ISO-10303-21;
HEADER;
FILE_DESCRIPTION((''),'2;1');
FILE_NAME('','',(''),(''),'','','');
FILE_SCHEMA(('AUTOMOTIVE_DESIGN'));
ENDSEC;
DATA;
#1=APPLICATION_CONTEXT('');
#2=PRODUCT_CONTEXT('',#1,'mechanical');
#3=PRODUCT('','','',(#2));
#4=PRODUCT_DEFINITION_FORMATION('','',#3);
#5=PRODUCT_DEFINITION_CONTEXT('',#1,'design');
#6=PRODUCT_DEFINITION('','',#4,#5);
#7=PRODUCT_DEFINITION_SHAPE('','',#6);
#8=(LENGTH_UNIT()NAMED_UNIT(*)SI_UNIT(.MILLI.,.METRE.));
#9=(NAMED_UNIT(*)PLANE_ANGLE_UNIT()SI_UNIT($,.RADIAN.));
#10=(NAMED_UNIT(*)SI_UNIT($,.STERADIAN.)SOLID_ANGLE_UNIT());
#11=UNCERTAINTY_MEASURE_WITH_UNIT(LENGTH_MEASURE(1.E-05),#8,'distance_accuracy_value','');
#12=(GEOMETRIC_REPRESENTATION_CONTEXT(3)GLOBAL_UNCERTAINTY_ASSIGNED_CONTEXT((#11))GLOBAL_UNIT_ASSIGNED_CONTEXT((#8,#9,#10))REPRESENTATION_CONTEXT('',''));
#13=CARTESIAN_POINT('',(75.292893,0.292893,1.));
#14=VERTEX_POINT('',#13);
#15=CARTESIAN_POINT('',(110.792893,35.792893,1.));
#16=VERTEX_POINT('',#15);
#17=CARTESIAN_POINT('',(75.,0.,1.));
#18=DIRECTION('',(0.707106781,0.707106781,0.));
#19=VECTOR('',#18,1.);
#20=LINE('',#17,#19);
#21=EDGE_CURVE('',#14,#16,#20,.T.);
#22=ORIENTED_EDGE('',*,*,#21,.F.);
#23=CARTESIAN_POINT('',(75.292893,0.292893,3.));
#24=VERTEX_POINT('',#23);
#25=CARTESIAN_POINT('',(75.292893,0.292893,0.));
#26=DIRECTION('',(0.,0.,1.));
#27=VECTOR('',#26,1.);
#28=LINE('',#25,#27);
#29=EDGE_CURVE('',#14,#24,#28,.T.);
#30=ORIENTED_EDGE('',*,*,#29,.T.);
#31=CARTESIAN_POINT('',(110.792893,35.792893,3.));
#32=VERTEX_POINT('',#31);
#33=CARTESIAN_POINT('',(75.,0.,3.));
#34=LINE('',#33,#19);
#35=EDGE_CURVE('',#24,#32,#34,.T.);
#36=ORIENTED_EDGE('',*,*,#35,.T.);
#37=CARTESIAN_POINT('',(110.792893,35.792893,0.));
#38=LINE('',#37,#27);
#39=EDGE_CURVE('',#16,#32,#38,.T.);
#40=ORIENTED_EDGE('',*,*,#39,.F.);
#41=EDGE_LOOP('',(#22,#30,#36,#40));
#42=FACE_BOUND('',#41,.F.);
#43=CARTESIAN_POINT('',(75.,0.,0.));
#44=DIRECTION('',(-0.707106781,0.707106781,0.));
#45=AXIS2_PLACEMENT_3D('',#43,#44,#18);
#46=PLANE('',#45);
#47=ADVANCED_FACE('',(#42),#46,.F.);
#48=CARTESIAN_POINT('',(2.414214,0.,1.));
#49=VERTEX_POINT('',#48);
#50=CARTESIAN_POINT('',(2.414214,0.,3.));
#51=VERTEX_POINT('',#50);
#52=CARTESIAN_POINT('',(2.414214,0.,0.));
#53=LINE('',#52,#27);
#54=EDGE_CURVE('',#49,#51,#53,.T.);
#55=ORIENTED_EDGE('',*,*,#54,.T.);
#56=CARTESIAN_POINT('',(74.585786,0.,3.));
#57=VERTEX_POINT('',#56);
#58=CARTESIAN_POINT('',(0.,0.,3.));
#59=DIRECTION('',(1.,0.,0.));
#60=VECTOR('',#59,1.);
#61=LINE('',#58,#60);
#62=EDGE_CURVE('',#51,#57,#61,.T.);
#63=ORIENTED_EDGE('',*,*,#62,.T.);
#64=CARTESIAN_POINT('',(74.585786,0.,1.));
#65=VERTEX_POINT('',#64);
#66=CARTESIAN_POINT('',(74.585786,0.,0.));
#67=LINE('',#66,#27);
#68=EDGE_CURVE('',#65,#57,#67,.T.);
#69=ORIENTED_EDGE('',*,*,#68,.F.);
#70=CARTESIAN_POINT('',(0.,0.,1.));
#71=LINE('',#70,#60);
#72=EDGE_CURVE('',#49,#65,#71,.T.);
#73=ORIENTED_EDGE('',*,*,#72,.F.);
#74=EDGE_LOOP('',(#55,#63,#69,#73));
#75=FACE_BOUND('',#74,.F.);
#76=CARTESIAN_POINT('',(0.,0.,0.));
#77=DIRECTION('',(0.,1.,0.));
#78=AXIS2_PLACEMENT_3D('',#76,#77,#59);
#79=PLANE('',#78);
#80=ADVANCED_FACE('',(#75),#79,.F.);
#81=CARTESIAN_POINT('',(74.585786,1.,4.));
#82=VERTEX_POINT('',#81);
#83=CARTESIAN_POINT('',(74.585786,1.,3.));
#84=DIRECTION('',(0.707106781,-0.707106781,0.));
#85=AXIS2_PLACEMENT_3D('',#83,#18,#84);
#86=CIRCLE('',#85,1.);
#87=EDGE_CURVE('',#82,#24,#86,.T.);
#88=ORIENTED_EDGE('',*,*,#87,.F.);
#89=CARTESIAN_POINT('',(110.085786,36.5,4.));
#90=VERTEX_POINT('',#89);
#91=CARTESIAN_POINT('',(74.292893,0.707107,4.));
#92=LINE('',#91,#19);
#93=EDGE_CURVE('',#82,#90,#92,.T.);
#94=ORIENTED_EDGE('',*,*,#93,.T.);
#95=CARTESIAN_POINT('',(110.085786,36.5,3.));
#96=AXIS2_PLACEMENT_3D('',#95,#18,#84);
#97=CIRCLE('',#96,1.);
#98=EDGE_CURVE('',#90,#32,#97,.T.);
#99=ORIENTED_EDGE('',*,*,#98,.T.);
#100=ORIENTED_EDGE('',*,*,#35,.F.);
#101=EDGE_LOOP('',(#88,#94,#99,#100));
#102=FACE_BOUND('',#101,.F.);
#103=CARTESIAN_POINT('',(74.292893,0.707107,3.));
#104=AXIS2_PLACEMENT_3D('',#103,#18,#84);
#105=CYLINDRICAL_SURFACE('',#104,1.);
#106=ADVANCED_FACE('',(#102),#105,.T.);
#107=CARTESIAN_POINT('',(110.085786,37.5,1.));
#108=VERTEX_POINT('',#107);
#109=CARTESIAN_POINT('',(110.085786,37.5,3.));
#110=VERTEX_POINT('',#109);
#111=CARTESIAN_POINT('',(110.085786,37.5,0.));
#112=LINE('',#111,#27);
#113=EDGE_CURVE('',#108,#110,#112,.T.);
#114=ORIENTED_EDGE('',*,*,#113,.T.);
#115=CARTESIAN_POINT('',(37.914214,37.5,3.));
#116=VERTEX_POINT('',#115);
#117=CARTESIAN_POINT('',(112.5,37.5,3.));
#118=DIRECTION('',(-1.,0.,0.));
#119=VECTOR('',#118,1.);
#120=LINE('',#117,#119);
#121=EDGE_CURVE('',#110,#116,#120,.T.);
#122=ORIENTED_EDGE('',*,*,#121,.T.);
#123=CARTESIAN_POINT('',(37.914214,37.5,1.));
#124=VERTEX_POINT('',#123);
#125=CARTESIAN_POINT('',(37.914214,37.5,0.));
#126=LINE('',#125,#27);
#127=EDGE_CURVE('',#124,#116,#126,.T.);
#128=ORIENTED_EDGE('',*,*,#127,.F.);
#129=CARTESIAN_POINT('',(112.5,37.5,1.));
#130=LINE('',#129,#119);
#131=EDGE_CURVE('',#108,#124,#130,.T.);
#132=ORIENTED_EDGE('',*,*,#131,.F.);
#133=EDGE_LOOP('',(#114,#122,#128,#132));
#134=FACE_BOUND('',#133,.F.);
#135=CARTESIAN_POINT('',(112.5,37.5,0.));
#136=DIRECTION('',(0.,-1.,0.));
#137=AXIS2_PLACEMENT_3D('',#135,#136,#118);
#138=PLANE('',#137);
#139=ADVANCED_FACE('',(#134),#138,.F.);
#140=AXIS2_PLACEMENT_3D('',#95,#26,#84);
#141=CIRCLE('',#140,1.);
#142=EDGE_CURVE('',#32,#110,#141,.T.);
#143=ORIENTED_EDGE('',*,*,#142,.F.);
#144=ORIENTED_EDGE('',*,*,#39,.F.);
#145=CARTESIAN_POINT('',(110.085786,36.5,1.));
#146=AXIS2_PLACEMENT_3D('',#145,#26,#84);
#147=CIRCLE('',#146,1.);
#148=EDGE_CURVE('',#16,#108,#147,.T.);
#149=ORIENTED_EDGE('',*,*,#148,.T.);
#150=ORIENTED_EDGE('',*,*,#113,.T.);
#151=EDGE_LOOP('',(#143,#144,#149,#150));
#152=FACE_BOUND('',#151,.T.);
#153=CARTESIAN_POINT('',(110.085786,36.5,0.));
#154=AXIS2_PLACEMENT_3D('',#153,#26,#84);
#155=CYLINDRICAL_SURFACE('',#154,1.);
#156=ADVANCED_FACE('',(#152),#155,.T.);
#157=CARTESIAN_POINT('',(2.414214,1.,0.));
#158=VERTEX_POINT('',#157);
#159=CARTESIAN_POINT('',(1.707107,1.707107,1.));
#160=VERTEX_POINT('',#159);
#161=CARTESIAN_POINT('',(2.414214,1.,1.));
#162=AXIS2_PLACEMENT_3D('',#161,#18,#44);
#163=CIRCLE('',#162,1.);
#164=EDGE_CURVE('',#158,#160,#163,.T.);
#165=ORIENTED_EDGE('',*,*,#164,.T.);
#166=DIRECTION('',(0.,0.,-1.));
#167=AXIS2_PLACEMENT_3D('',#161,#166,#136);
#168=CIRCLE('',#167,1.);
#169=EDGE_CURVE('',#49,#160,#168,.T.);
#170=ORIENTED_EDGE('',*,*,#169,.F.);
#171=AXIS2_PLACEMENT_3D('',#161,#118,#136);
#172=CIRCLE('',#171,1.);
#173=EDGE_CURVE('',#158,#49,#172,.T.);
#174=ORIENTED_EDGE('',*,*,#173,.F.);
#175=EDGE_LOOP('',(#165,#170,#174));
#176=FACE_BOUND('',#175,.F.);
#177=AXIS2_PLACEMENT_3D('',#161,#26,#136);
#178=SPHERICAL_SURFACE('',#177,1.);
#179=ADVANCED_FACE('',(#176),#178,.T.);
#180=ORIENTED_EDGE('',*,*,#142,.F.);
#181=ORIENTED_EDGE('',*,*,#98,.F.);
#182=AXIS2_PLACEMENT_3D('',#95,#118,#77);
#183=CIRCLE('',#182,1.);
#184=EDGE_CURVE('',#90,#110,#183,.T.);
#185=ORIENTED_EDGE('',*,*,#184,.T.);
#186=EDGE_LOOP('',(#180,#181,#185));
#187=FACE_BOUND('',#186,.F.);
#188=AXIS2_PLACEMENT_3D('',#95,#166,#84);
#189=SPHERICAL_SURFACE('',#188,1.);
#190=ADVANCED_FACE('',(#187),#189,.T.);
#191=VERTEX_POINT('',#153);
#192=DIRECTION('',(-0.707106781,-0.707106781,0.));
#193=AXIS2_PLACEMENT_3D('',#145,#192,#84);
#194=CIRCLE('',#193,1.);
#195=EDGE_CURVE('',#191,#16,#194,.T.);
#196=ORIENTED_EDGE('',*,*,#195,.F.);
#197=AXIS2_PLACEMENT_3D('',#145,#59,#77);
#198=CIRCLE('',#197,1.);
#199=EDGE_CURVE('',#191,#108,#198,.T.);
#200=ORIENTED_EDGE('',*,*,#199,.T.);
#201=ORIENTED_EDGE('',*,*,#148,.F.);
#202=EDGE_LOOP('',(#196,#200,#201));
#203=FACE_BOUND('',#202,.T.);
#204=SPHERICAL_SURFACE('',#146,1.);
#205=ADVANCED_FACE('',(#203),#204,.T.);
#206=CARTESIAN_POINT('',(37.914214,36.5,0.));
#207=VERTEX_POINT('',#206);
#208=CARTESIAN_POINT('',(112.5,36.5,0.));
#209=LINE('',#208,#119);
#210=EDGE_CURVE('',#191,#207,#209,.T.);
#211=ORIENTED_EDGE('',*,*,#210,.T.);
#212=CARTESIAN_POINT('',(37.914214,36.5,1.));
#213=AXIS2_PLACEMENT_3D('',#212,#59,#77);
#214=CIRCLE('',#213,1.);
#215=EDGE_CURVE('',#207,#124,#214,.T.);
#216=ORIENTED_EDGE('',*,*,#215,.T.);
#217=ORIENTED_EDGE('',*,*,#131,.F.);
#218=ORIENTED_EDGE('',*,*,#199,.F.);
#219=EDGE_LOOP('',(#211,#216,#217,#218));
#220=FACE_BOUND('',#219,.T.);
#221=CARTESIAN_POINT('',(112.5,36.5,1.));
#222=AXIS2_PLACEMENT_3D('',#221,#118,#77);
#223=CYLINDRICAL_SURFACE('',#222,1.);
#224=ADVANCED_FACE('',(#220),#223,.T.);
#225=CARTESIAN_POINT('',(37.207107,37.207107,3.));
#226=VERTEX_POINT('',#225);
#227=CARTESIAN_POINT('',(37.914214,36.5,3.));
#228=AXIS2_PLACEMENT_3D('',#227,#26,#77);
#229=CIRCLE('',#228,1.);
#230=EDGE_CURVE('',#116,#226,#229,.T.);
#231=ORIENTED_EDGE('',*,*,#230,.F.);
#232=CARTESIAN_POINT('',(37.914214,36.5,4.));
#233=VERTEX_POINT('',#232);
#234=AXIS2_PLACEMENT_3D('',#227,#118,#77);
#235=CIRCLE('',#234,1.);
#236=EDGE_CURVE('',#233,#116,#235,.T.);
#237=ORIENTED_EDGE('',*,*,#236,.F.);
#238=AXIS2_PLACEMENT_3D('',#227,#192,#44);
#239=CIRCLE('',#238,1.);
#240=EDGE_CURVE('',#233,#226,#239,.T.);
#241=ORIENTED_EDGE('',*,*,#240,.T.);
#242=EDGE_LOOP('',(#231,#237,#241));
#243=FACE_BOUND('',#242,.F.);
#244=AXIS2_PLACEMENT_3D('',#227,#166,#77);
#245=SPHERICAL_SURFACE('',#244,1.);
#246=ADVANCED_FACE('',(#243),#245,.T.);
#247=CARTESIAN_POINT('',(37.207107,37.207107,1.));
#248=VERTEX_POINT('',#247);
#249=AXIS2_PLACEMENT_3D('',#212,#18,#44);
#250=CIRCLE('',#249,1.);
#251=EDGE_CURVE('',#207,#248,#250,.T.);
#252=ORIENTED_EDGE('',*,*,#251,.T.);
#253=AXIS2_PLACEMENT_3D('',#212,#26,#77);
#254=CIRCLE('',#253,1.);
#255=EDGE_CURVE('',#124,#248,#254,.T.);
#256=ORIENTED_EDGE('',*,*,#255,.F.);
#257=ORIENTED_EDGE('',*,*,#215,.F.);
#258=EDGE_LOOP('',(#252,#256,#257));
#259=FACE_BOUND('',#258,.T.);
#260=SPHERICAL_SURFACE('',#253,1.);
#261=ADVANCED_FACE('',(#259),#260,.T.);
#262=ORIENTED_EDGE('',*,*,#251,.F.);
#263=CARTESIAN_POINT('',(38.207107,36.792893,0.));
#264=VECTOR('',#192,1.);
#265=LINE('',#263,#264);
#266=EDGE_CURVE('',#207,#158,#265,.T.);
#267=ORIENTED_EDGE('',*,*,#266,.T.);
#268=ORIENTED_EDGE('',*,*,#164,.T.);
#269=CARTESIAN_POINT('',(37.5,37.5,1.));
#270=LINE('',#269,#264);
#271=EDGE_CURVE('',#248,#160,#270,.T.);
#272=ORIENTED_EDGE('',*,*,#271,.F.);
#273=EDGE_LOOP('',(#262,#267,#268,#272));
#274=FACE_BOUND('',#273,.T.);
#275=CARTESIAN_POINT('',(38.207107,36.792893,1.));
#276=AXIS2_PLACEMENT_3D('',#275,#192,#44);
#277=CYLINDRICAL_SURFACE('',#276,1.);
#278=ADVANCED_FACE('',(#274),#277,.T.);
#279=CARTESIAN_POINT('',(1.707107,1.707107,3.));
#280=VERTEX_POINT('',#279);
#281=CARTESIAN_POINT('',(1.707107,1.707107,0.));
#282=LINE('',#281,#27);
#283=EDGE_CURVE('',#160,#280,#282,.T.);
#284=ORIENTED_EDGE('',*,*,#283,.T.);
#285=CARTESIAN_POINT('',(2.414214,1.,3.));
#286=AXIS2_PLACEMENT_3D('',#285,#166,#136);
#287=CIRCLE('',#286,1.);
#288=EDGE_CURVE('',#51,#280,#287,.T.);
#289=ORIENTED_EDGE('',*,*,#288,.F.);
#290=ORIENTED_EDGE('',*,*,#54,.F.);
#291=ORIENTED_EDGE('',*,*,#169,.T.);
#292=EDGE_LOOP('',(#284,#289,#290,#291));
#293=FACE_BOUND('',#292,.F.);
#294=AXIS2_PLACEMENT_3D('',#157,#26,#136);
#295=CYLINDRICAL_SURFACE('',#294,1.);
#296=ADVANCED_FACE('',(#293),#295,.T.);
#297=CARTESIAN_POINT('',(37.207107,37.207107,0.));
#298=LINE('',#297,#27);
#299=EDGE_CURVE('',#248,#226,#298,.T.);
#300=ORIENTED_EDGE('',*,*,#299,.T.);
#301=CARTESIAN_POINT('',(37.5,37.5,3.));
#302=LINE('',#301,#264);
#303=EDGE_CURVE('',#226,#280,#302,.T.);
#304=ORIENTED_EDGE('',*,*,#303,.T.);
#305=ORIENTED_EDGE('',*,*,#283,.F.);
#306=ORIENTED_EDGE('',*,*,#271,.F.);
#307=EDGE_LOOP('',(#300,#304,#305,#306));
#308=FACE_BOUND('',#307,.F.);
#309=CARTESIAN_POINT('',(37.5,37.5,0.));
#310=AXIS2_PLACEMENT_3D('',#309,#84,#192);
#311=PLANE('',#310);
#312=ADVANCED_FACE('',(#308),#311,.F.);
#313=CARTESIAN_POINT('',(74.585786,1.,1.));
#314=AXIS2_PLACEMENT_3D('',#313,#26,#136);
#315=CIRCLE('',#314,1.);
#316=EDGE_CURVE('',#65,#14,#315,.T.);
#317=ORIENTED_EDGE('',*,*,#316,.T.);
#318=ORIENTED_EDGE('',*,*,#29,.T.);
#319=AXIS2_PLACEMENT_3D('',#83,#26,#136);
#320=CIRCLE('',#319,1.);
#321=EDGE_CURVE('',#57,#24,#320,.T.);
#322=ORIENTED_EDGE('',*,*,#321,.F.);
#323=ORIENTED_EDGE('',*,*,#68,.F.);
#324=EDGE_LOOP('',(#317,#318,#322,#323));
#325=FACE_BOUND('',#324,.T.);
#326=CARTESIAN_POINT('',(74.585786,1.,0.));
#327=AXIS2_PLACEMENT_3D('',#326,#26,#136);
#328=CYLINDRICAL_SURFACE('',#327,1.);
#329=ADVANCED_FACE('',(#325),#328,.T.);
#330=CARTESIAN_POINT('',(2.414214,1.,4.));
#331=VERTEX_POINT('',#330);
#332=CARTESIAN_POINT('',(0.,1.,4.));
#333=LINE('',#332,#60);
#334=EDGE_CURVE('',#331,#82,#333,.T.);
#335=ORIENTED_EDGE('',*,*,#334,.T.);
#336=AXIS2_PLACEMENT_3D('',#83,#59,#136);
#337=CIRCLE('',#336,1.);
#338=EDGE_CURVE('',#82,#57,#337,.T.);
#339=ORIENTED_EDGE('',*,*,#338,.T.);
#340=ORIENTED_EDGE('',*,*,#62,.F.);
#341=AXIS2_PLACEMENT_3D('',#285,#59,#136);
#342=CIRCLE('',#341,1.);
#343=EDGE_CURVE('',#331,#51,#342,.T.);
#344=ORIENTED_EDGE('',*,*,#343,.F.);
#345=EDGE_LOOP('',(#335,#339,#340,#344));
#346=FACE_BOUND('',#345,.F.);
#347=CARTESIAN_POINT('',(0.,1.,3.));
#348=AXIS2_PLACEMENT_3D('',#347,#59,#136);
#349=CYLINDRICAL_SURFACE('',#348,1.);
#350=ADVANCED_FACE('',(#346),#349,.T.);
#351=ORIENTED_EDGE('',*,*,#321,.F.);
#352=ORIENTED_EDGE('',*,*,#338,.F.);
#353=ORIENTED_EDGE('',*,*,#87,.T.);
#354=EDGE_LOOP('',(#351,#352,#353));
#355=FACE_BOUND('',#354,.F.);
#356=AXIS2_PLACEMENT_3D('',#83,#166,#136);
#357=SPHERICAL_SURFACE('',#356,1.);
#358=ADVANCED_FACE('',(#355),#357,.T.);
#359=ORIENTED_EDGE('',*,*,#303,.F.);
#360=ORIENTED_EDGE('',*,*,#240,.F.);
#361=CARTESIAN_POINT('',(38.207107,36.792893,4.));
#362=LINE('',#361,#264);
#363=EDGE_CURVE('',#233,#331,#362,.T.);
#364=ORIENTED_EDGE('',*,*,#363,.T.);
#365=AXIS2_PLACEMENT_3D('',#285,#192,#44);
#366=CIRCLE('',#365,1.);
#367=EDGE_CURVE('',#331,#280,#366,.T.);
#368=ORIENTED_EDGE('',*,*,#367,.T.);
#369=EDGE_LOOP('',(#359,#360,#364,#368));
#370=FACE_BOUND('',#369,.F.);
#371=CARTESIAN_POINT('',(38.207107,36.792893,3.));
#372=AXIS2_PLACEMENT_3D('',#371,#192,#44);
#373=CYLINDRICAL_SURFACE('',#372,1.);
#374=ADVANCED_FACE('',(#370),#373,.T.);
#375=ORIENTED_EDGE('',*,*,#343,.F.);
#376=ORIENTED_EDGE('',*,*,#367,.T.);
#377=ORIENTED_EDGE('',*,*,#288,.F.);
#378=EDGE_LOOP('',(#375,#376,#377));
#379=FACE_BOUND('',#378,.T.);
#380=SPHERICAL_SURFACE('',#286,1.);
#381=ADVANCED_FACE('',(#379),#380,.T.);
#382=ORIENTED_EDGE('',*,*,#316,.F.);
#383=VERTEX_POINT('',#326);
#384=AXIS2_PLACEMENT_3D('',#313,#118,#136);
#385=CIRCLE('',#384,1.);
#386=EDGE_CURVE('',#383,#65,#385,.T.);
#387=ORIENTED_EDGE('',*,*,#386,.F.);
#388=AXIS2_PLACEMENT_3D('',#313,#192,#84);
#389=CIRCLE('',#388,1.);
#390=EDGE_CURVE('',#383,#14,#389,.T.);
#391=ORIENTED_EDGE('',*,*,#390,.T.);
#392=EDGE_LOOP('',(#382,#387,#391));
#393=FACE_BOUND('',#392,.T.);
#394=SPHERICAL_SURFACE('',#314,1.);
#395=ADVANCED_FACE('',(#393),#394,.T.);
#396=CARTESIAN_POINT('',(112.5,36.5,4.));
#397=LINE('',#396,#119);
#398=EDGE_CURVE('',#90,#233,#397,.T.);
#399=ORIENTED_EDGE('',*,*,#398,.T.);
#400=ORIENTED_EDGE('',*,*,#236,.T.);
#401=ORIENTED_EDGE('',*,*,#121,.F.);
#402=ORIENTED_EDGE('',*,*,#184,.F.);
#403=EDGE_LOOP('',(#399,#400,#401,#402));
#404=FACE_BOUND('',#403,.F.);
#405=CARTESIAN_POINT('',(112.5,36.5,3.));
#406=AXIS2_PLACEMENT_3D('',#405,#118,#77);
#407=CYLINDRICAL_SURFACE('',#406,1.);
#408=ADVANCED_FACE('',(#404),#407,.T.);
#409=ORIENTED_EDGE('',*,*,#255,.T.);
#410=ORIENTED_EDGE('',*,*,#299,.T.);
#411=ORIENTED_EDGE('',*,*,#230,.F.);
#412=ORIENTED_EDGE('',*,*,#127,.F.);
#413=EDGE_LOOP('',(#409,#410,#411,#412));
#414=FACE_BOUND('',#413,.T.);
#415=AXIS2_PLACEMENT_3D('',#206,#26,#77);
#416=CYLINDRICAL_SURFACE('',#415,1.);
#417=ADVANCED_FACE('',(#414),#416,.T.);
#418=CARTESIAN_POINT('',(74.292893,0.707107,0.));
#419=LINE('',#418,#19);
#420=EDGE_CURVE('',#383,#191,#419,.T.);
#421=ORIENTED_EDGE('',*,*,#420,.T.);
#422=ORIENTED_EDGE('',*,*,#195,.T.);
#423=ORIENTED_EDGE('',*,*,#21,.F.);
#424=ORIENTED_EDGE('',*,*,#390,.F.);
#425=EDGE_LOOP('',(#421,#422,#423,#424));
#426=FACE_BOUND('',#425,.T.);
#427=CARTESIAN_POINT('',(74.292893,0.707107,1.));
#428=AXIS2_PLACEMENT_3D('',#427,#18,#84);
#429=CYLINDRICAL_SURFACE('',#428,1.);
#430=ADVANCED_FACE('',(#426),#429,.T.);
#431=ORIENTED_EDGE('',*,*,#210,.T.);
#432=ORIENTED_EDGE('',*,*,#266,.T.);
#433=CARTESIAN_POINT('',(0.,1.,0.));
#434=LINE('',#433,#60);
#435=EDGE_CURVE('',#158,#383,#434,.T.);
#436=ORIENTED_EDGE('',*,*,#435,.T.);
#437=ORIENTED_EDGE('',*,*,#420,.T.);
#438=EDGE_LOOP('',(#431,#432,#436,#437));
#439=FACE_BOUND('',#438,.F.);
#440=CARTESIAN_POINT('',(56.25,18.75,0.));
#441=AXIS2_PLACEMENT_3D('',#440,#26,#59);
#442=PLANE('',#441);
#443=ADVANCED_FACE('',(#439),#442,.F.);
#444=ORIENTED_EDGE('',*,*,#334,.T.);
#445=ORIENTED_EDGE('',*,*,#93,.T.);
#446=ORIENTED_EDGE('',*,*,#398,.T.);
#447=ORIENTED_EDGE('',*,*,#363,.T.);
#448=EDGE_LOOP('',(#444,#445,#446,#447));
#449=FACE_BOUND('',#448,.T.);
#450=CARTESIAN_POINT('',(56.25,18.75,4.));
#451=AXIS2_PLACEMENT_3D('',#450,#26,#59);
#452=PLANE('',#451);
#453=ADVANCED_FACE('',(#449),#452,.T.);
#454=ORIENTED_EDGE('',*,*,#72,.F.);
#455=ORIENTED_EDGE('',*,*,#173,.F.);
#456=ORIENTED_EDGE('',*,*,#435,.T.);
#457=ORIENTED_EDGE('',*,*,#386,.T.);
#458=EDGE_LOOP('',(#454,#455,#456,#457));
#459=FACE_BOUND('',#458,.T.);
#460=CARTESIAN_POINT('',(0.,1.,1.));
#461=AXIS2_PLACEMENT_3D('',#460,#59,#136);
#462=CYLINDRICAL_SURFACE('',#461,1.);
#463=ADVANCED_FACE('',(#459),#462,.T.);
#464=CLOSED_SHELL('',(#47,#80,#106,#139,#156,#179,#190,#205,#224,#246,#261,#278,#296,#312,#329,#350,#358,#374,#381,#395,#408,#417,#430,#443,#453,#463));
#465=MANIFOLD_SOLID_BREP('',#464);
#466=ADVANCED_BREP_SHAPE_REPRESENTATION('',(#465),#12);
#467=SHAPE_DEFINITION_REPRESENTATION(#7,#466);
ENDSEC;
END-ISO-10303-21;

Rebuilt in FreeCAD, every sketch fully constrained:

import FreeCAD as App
import Part
import Sketcher
Q = App.Units.Quantity

doc = App.newDocument("Part")
body = doc.addObject("PartDesign::Body", "Body")

# Sketch on XY plane
sketch1 = doc.addObject("Sketcher::SketchObject", "Sketch")
body.addObject(sketch1)
sketch1.AttachmentSupport = (doc.XY_Plane, [""])
sketch1.MapMode = "FlatFace"
sketch1.addGeometry([
    Part.LineSegment(App.Vector(0, 0, 0), App.Vector(75, 0, 0)),
    Part.LineSegment(App.Vector(75, 0, 0), App.Vector(112, 38, 0)),
    Part.LineSegment(App.Vector(112, 38, 0), App.Vector(38, 38, 0)),
    Part.LineSegment(App.Vector(38, 38, 0), App.Vector(0, 0, 0)),
], False)
sketch1.addConstraint([
    Sketcher.Constraint("Coincident", 0, 2, 1, 1),
    Sketcher.Constraint("Coincident", 1, 2, 2, 1),
    Sketcher.Constraint("Coincident", 2, 2, 3, 1),
    Sketcher.Constraint("Coincident", 3, 2, 0, 1),
    Sketcher.Constraint("Horizontal", 0),
    Sketcher.Constraint("Horizontal", 2),
    Sketcher.Constraint("Coincident", 3, 2, -1, 1),
    Sketcher.Constraint("Parallel", 1, 3),
    Sketcher.Constraint("DistanceX", 0, 1, 0, 2, Q("75 mm")),
    Sketcher.Constraint("Angle", 1, Q("45 deg")),
    Sketcher.Constraint("DistanceX", -1, 1, 1, 2, Q("112.5 mm")),
])
pad1 = doc.addObject("PartDesign::Pad", "Pad")
body.addObject(pad1)
pad1.Profile = sketch1
pad1.Length = 4
doc.recompute()

fillet = doc.addObject("PartDesign::Fillet", "Fillet")
body.addObject(fillet)
fillet.Base = (pad1, ["Edge1"])
fillet.UseAllEdges = True
fillet.Radius = 1

doc.recompute()
